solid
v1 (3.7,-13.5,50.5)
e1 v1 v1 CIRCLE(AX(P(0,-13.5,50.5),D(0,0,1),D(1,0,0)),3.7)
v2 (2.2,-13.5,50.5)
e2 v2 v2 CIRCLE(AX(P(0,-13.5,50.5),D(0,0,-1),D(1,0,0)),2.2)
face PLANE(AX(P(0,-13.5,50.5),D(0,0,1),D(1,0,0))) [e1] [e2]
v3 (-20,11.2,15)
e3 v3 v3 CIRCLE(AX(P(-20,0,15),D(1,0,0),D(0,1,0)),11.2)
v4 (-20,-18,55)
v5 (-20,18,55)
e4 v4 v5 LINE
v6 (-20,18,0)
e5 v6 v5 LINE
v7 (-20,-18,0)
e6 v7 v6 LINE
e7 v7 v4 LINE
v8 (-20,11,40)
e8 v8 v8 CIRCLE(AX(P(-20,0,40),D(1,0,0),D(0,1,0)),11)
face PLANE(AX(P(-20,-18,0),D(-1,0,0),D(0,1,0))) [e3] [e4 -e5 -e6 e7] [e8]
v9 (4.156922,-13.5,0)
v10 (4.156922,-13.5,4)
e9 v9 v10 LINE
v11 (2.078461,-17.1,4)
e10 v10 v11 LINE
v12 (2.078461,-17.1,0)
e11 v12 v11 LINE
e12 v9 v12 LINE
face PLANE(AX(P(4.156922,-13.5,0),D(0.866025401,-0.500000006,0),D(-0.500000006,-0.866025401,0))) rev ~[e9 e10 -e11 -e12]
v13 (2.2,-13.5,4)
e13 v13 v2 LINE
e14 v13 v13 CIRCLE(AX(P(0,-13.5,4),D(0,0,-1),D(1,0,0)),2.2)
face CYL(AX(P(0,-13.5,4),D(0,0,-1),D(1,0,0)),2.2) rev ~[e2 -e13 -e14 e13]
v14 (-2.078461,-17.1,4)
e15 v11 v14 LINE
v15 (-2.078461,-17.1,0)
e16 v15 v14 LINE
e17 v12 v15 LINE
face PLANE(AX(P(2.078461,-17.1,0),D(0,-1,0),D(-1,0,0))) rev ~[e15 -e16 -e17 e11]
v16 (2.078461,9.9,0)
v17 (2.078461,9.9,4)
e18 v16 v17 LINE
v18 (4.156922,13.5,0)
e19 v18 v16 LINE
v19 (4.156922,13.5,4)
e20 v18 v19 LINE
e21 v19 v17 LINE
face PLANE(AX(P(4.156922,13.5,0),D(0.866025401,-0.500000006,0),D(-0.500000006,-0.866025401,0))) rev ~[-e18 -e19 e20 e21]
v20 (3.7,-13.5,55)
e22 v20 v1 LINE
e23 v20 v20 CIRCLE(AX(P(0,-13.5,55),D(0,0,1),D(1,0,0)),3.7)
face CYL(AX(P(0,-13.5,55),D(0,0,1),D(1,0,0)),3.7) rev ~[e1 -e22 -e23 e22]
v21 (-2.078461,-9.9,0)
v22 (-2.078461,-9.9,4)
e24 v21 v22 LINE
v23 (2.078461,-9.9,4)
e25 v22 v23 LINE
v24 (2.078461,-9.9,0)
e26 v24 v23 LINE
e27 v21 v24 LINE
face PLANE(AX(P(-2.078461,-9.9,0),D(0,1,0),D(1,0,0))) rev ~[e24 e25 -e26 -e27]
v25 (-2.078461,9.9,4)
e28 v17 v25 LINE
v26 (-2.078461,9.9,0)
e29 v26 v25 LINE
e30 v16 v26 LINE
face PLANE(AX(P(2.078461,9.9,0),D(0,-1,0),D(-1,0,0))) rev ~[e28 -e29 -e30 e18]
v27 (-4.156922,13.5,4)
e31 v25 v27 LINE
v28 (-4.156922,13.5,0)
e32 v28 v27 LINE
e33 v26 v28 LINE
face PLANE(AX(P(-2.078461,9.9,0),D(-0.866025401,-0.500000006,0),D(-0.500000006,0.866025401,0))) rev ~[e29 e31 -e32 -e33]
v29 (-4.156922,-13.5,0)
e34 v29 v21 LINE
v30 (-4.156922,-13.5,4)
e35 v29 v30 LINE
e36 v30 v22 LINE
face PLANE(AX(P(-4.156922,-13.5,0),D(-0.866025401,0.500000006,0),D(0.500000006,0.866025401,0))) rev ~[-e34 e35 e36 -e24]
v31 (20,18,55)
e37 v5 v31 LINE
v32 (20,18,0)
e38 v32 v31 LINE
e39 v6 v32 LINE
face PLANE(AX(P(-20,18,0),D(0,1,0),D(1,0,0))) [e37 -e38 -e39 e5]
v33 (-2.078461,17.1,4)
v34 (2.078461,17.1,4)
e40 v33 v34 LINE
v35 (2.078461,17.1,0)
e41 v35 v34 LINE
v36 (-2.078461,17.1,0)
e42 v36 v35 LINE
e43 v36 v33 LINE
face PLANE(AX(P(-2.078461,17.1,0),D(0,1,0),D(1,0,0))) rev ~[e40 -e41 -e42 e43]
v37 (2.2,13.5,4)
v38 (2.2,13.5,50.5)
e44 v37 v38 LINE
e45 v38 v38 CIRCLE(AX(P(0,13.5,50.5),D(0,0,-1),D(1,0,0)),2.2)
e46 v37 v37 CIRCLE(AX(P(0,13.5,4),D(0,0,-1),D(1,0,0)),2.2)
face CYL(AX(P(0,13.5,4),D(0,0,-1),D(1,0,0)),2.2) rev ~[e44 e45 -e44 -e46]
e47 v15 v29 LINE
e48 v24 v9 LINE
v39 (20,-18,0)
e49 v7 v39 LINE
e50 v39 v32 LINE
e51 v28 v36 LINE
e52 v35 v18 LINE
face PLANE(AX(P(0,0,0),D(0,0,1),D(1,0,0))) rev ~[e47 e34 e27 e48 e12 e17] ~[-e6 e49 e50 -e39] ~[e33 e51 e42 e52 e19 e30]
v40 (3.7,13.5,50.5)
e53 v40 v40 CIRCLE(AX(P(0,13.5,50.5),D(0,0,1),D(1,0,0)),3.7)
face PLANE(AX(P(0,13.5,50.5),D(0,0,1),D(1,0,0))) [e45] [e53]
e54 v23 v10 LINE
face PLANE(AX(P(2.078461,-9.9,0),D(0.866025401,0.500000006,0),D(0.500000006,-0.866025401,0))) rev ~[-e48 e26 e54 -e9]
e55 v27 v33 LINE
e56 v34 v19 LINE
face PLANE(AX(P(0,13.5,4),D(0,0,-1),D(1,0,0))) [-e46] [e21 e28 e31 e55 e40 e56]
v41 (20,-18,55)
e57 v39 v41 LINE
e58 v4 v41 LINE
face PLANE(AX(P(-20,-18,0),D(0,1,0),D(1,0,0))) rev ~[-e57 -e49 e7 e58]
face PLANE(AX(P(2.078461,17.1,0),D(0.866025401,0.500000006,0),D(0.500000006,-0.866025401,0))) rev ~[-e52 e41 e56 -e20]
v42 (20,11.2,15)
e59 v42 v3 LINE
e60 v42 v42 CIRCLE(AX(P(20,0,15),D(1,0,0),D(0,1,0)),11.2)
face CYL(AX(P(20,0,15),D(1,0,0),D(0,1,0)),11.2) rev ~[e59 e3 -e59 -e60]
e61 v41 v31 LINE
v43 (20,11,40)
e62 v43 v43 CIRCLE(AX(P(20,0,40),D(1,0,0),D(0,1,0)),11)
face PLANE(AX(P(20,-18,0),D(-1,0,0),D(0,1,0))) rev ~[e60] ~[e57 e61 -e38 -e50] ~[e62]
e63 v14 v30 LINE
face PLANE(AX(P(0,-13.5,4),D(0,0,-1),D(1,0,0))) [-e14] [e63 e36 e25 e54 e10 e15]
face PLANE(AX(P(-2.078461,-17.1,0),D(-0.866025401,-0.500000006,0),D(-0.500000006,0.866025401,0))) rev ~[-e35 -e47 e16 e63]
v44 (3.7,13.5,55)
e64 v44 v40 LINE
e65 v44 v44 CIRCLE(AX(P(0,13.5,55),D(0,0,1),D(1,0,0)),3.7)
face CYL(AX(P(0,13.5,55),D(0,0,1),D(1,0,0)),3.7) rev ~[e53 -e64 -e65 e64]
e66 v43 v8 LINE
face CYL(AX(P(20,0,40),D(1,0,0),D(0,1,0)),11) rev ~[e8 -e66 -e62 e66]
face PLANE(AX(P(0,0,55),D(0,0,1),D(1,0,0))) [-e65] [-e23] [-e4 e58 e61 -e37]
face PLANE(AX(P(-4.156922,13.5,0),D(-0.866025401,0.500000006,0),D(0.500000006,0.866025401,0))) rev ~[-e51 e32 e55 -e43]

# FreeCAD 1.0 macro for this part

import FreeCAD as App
import Part
import Sketcher
Q = App.Units.Quantity


def add_polygon(sketch, points):
    """Adds a closed chain of lines whose ends are joined by coincident constraints."""
    first, n = sketch.GeometryCount, len(points)
    for a, b in zip(points, points[1:] + points[:1]):
        sketch.addGeometry(Part.LineSegment(App.Vector(*a, 0), App.Vector(*b, 0)), False)
    for i in range(n):
        sketch.addConstraint(Sketcher.Constraint("Coincident", first + i, 2, first + (i + 1) % n, 1))

doc = App.newDocument("Part")
body = doc.addObject("PartDesign::Body", "Body")

sketch1 = body.newObject("Sketcher::SketchObject", "Sketch")
sketch1.AttachmentSupport = (doc.getObject("XY_Plane"), [""])
sketch1.MapMode = "FlatFace"
add_polygon(sketch1, [(-20, 18), (-20, -18), (20, -18), (20, 18)])
sketch1.addConstraint([
    Sketcher.Constraint("Vertical", 0),
    Sketcher.Constraint("Horizontal", 1),
    Sketcher.Constraint("Vertical", 2),
    Sketcher.Constraint("Horizontal", 3),
    Sketcher.Constraint("Symmetric", 0, 2, 2, 2, -1, 1),
    Sketcher.Constraint("DistanceX", 1, 1, 1, 2, 40.0),
    Sketcher.Constraint("DistanceY", 0, 2, 0, 1, 36.0),
])
pad1 = body.newObject("PartDesign::Pad", "Pad")
pad1.Profile = sketch1
pad1.Length = 55

sketch2 = body.newObject("Sketcher::SketchObject", "Sketch001")
sketch2.AttachmentSupport = (doc.getObject("YZ_Plane"), [""])
sketch2.MapMode = "FlatFace"
sketch2.AttachmentOffset = App.Placement(App.Vector(0, 0, 20), App.Rotation())
sketch2.addGeometry([
    Part.Circle(App.Vector(0, 15, 0), App.Vector(0, 0, 1), 11),
    Part.Circle(App.Vector(0, 40, 0), App.Vector(0, 0, 1), 11),
], False)
sketch2.addConstraint([
    Sketcher.Constraint("PointOnObject", 0, 3, -2),
    Sketcher.Constraint("PointOnObject", 1, 3, -2),
    Sketcher.Constraint("Diameter", 1, 22.0),
    Sketcher.Constraint("Diameter", 0, 22.4),
    Sketcher.Constraint("DistanceY", -1, 1, 0, 3, 15.0),
    Sketcher.Constraint("DistanceY", -1, 1, 1, 3, 40.0),
])
pocket1 = body.newObject("PartDesign::Pocket", "Pocket")
pocket1.Profile = sketch2
pocket1.Type = "ThroughAll"

sketch3 = body.newObject("Sketcher::SketchObject", "Sketch002")
sketch3.AttachmentSupport = (doc.getObject("XY_Plane"), [""])
sketch3.MapMode = "FlatFace"
add_polygon(sketch3, [(2.1, -9.9), (4.2, -13.5), (2.1, -17.1), (-2.1, -17.1), (-4.2, -13.5), (-2.1, -9.9)])
add_polygon(sketch3, [(4.2, 13.5), (2.1, 9.9), (-2.1, 9.9), (-4.2, 13.5), (-2.1, 17.1), (2.1, 17.1)])
sketch3.addConstraint([
    Sketcher.Constraint("Horizontal", 2),
    Sketcher.Constraint("Horizontal", 5),
    Sketcher.Constraint("Horizontal", 7),
    Sketcher.Constraint("Horizontal", 10),
    Sketcher.Constraint("Symmetric", 4, 2, 6, 2, -1, 1),
    Sketcher.Constraint("Symmetric", 0, 2, 8, 2, -1, 1),
    Sketcher.Constraint("Symmetric", 1, 2, 9, 2, -1, 1),
    Sketcher.Constraint("Symmetric", 3, 2, 11, 2, -1, 1),
    Sketcher.Constraint("Symmetric", 0, 2, 3, 2, -2),
    Sketcher.Constraint("Parallel", 0, 3),
    Sketcher.Constraint("Parallel", 1, 4),
    Sketcher.Constraint("Parallel", 3, 8),
    Sketcher.Constraint("Parallel", 8, 11),
    Sketcher.Constraint("Vertical", 2, 2, 4, 2),
    Sketcher.Constraint("Vertical", 1, 2, 5, 2),
    Sketcher.Constraint("Angle", 0, Q("-60 deg")),
    Sketcher.Constraint("DistanceY", 1, 2, 6, 2, 27.0),
    Sketcher.Constraint("DistanceY", 1, 2, -1, 1, 17.1),
    Sketcher.Constraint("DistanceX", 2, 2, 2, 1, 4.156922),
])
pocket2 = body.newObject("PartDesign::Pocket", "Pocket001")
pocket2.Profile = sketch3
pocket2.Length = 4
pocket2.Reversed = True

sketch4 = body.newObject("Sketcher::SketchObject", "Sketch003")
sketch4.AttachmentSupport = (doc.getObject("XY_Plane"), [""])
sketch4.MapMode = "FlatFace"
sketch4.AttachmentOffset = App.Placement(App.Vector(0, 0, 4), App.Rotation())
sketch4.addGeometry([
    Part.Circle(App.Vector(0, -13.5, 0), App.Vector(0, 0, 1), 2.2),
    Part.Circle(App.Vector(0, 13.5, 0), App.Vector(0, 0, 1), 2.2),
], False)
sketch4.addConstraint([
    Sketcher.Constraint("Equal", 0, 1),
    Sketcher.Constraint("Symmetric", 0, 3, 1, 3, -1, 1),
    Sketcher.Constraint("PointOnObject", 0, 3, -2),
    Sketcher.Constraint("Diameter", 0, 4.4),
    Sketcher.Constraint("DistanceY", 0, 3, 1, 3, 27.0),
])
pocket3 = body.newObject("PartDesign::Pocket", "Pocket002")
pocket3.Profile = sketch4
pocket3.Type = "ThroughAll"
pocket3.Reversed = True

sketch5 = body.newObject("Sketcher::SketchObject", "Sketch004")
sketch5.AttachmentSupport = (doc.getObject("XY_Plane"), [""])
sketch5.MapMode = "FlatFace"
sketch5.AttachmentOffset = App.Placement(App.Vector(0, 0, 55), App.Rotation())
sketch5.addGeometry([
    Part.Circle(App.Vector(0, -13.5, 0), App.Vector(0, 0, 1), 3.7),
    Part.Circle(App.Vector(0, 13.5, 0), App.Vector(0, 0, 1), 3.7),
], False)
sketch5.addConstraint([
    Sketcher.Constraint("Equal", 0, 1),
    Sketcher.Constraint("Symmetric", 0, 3, 1, 3, -1, 1),
    Sketcher.Constraint("PointOnObject", 0, 3, -2),
    Sketcher.Constraint("Diameter", 0, 7.4),
    Sketcher.Constraint("DistanceY", 0, 3, 1, 3, 27.0),
])
pocket4 = body.newObject("PartDesign::Pocket", "Pocket003")
pocket4.Profile = sketch5
pocket4.Length = 4.5

doc.recompute()
